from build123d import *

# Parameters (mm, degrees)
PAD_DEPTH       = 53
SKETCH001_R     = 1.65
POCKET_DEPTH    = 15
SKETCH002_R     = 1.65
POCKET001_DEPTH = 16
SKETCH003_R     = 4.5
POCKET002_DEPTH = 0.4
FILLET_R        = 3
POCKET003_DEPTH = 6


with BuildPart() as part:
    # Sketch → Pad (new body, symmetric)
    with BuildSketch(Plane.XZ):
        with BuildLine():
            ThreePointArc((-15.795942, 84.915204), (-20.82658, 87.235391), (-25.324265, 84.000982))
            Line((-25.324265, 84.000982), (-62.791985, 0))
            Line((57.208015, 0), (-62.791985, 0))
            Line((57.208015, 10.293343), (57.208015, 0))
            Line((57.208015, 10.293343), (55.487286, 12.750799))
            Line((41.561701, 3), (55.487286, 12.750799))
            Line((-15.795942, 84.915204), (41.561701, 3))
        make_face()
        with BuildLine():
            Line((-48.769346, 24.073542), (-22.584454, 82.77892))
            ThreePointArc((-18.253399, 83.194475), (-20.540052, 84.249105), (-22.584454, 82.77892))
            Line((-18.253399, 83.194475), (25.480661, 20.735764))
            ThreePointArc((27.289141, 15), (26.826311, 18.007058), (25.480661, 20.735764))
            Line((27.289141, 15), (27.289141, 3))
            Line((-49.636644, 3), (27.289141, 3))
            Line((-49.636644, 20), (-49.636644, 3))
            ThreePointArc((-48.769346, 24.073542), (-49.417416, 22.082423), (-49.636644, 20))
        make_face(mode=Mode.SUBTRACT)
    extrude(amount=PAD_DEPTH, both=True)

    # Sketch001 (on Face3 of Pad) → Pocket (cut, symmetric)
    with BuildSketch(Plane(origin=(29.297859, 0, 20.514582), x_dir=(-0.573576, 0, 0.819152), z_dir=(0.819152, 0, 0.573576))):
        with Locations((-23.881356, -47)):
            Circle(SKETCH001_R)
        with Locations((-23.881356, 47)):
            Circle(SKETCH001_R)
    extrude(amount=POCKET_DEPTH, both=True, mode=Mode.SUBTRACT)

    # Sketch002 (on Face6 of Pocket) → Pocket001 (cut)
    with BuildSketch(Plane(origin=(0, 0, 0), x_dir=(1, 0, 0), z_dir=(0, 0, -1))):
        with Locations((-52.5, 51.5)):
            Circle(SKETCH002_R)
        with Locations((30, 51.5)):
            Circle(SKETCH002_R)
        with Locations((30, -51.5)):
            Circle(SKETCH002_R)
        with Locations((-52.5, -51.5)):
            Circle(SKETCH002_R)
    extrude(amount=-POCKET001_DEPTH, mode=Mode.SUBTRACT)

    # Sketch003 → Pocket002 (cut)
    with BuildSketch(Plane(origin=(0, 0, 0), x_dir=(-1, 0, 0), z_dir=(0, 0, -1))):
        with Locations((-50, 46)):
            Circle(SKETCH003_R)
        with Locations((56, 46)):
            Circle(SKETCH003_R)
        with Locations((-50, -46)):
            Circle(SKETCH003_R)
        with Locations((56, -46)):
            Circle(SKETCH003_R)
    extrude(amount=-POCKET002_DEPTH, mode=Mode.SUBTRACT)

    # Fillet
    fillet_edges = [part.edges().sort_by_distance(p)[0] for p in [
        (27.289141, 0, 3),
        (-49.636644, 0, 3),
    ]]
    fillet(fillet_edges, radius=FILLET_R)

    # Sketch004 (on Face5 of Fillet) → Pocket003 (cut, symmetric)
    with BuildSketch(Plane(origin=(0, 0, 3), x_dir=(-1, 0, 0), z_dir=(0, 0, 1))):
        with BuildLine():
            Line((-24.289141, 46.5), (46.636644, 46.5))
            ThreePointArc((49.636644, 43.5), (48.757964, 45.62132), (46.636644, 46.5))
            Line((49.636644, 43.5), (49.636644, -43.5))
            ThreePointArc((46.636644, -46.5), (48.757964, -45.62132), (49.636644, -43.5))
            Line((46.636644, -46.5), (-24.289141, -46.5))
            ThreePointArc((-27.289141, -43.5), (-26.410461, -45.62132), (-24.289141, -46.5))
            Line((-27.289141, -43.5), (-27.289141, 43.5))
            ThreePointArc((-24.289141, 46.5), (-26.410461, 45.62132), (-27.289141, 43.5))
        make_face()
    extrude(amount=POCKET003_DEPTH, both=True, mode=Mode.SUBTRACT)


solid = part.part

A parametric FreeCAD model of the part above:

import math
import FreeCAD as App
import Part
import Sketcher
Q = App.Units.Quantity


def edges_at(feature, points):
    """Names of the edges that pass closest to the given points."""
    edges = feature.Shape.Edges
    near = lambda p: min(range(len(edges)), key=lambda i: edges[i].distToShape(Part.Vertex(*p))[0])
    return sorted({f"Edge{near(p) + 1}" for p in points})

doc = App.newDocument("Part")
params = doc.addObject("Spreadsheet::Sheet", "Params")
for row, (alias, value) in enumerate([
    ("sketch1_radius", "5.5 mm"),
    ("sketch1_radius2", "2.5 mm"),
    ("sketch1_width", "120 mm"),
    ("sketch1_height", "12 mm"),
    ("sketch1_height2", "17 mm"),
    ("pad1_length", "106 mm"),
    ("sketch2_diameter", "3.3 mm"),
    ("pocket1_length", "30 mm"),
    ("sketch3_diameter", "3.3 mm"),
    ("pocket2_length", "16 mm"),
    ("sketch4_diameter", "9 mm"),
    ("pocket3_length", "0.4 mm"),
    ("fillet_radius", "3 mm"),
    ("sketch5_radius", "3.000001 mm"),
    ("sketch5_height", "87 mm"),
    ("pocket4_length", "12 mm"),
], start=1):
    params.set(f"A{row}", alias)
    params.set(f"B{row}", "=" + value)
    params.setAlias(f"B{row}", alias)

body = doc.addObject("PartDesign::Body", "Body")

sketch1 = body.newObject("Sketcher::SketchObject", "Sketch")
sketch1.AttachmentSupport = (doc.getObject("XZ_Plane"), [""])
sketch1.MapMode = "FlatFace"
sketch1.addGeometry([
    Part.ArcOfCircle(Part.Circle(App.Vector(-20.3, 81.8, 0), App.Vector(0, 0, 1), 5.5), math.radians(35), math.radians(156)),
    Part.LineSegment(App.Vector(-25.3, 84, 0), App.Vector(-62.8, 0, 0)),
    Part.LineSegment(App.Vector(-62.8, 0, 0), App.Vector(57.2, 0, 0)),
    Part.LineSegment(App.Vector(57.2, 0, 0), App.Vector(57.2, 10.3, 0)),
    Part.LineSegment(App.Vector(57.2, 10.3, 0), App.Vector(55.5, 12.8, 0)),
    Part.LineSegment(App.Vector(55.5, 12.8, 0), App.Vector(41.6, 3, 0)),
    Part.LineSegment(App.Vector(41.6, 3, 0), App.Vector(-15.8, 84.9, 0)),
    Part.ArcOfCircle(Part.Circle(App.Vector(-39.6, 20, 0), App.Vector(0, 0, 1), 10), math.radians(156), math.radians(180)),
    Part.LineSegment(App.Vector(-48.8, 24.1, 0), App.Vector(-22.6, 82.8, 0)),
    Part.ArcOfCircle(Part.Circle(App.Vector(-20.3, 81.8, 0), App.Vector(0, 0, 1), 2.5), math.radians(35), math.radians(156)),
    Part.LineSegment(App.Vector(-18.3, 83.2, 0), App.Vector(25.5, 20.7, 0)),
    Part.ArcOfCircle(Part.Circle(App.Vector(17.3, 15, 0), App.Vector(0, 0, 1), 10), math.radians(0), math.radians(35)),
    Part.LineSegment(App.Vector(27.3, 15, 0), App.Vector(27.3, 3, 0)),
    Part.LineSegment(App.Vector(27.3, 3, 0), App.Vector(-49.6, 3, 0)),
    Part.LineSegment(App.Vector(-49.6, 3, 0), App.Vector(-49.6, 20, 0)),
], False)
sketch1.addConstraint([
    Sketcher.Constraint("Tangent", 0, 2, 1, 1),
    Sketcher.Constraint("Coincident", 1, 2, 2, 1),
    Sketcher.Constraint("Coincident", 2, 2, 3, 1),
    Sketcher.Constraint("Coincident", 3, 2, 4, 1),
    Sketcher.Constraint("Coincident", 4, 2, 5, 1),
    Sketcher.Constraint("Coincident", 5, 2, 6, 1),
    Sketcher.Constraint("Tangent", 6, 2, 0, 1),
    Sketcher.Constraint("Tangent", 7, 1, 8, 1),
    Sketcher.Constraint("Tangent", 8, 2, 9, 2),
    Sketcher.Constraint("Tangent", 9, 1, 10, 1),
    Sketcher.Constraint("Tangent", 10, 2, 11, 2),
    Sketcher.Constraint("Tangent", 11, 1, 12, 1),
    Sketcher.Constraint("Coincident", 12, 2, 13, 1),
    Sketcher.Constraint("Coincident", 13, 2, 14, 1),
    Sketcher.Constraint("Tangent", 14, 2, 7, 2),
    Sketcher.Constraint("Horizontal", 2),
    Sketcher.Constraint("Vertical", 3),
    Sketcher.Constraint("Vertical", 12),
    Sketcher.Constraint("Horizontal", 13),
    Sketcher.Constraint("Vertical", 14),
    Sketcher.Constraint("Coincident", 9, 3, 0, 3),
    Sketcher.Constraint("PointOnObject", 1, 2, -1),
    Sketcher.Constraint("Perpendicular", 4, 5),
    Sketcher.Constraint("Perpendicular", 5, 6),
    Sketcher.Constraint("Parallel", 1, 8),
    Sketcher.Constraint("Parallel", 6, 10),
    Sketcher.Constraint("Horizontal", 5, 2, 12, 2),
    Sketcher.Constraint("Radius", 0, Q("5.5 mm")),
    Sketcher.Constraint("Radius", 9, Q("2.5 mm")),
    Sketcher.Constraint("DistanceX", 2, 1, 2, 2, Q("120 mm")),
    Sketcher.Constraint("DistanceY", 12, 2, 12, 1, Q("12 mm")),
    Sketcher.Constraint("DistanceY", 14, 1, 14, 2, Q("17 mm")),
    Sketcher.Constraint("Angle", 4, Q("124.999997 deg")),
    Sketcher.Constraint("Distance", 4, Q("3 mm")),
    Sketcher.Constraint("Distance", 5, Q("17 mm")),
    Sketcher.Constraint("Distance", 6, Q("99.999999 mm")),
    Sketcher.Constraint("DistanceY", -1, 1, 5, 2, Q("3 mm")),
    Sketcher.Constraint("Radius", 7, Q("10.000019 mm")),
    Sketcher.Constraint("Radius", 11, Q("9.999984 mm")),
    Sketcher.Constraint("DistanceX", -1, 1, 5, 2, Q("41.561701 mm")),
])
sketch1.setExpression("Constraints[27]", "Params.sketch1_radius")
sketch1.setExpression("Constraints[28]", "Params.sketch1_radius2")
sketch1.setExpression("Constraints[29]", "Params.sketch1_width")
sketch1.setExpression("Constraints[30]", "Params.sketch1_height")
sketch1.setExpression("Constraints[31]", "Params.sketch1_height2")
pad1 = body.newObject("PartDesign::Pad", "Pad")
pad1.Profile = sketch1
pad1.setExpression("Length", "Params.pad1_length")
pad1.Midplane = True

sketch2 = body.newObject("Sketcher::SketchObject", "Sketch001")
sketch2.Placement = App.Placement(App.Vector(29.297859, 0, 20.514582), App.Rotation(App.Vector(-0.573576164, 0, 0.819152235), App.Vector(0, -1, 0), App.Vector(0.819152235, 0, 0.573576164), "ZXY"))
sketch2.addGeometry([
    Part.Circle(App.Vector(-23.9, -47, 0), App.Vector(0, 0, 1), 1.6),
    Part.Circle(App.Vector(-23.9, 47, 0), App.Vector(0, 0, 1), 1.6),
], False)
sketch2.addConstraint([
    Sketcher.Constraint("Equal", 0, 1),
    Sketcher.Constraint("Symmetric", 0, 3, 1, 3, -1),
    Sketcher.Constraint("Diameter", 0, Q("3.3 mm")),
    Sketcher.Constraint("DistanceY", 0, 3, -1, 1, Q("47 mm")),
    Sketcher.Constraint("DistanceX", 0, 3, -1, 1, Q("23.881356 mm")),
])
sketch2.setExpression("Constraints[2]", "Params.sketch2_diameter")
pocket1 = body.newObject("PartDesign::Pocket", "Pocket")
pocket1.Profile = sketch2
pocket1.setExpression("Length", "Params.pocket1_length")
pocket1.Midplane = True

sketch3 = body.newObject("Sketcher::SketchObject", "Sketch002")
sketch3.AttachmentSupport = (doc.getObject("XY_Plane"), [""])
sketch3.MapMode = "FlatFace"
sketch3.addGeometry([
    Part.Circle(App.Vector(-52.5, -51.5, 0), App.Vector(0, 0, 1), 1.6),
    Part.Circle(App.Vector(30, -51.5, 0), App.Vector(0, 0, 1), 1.6),
    Part.Circle(App.Vector(30, 51.5, 0), App.Vector(0, 0, 1), 1.6),
    Part.Circle(App.Vector(-52.5, 51.5, 0), App.Vector(0, 0, 1), 1.6),
], False)
sketch3.addConstraint([
    Sketcher.Constraint("Equal", 0, 1),
    Sketcher.Constraint("Equal", 1, 2),
    Sketcher.Constraint("Equal", 2, 3),
    Sketcher.Constraint("Symmetric", 1, 3, 2, 3, -1),
    Sketcher.Constraint("Symmetric", 0, 3, 3, 3, -1),
    Sketcher.Constraint("Horizontal", 0, 3, 1, 3),
    Sketcher.Constraint("Diameter", 0, Q("3.3 mm")),
    Sketcher.Constraint("DistanceX", -1, 1, 1, 3, Q("30 mm")),
    Sketcher.Constraint("DistanceY", 1, 3, 2, 3, Q("103 mm")),
    Sketcher.Constraint("DistanceX", 0, 3, -1, 1, Q("52.5 mm")),
])
sketch3.setExpression("Constraints[6]", "Params.sketch3_diameter")
pocket2 = body.newObject("PartDesign::Pocket", "Pocket001")
pocket2.Profile = sketch3
pocket2.setExpression("Length", "Params.pocket2_length")
pocket2.Reversed = True

sketch4 = body.newObject("Sketcher::SketchObject", "Sketch003")
sketch4.AttachmentSupport = (doc.getObject("XY_Plane"), [""])
sketch4.MapMode = "FlatFace"
sketch4.addGeometry([
    Part.Circle(App.Vector(50, 46, 0), App.Vector(0, 0, 1), 4.5),
    Part.Circle(App.Vector(-56, 46, 0), App.Vector(0, 0, 1), 4.5),
    Part.Circle(App.Vector(50, -46, 0), App.Vector(0, 0, 1), 4.5),
    Part.Circle(App.Vector(-56, -46, 0), App.Vector(0, 0, 1), 4.5),
], False)
sketch4.addConstraint([
    Sketcher.Constraint("Equal", 0, 1),
    Sketcher.Constraint("Equal", 1, 2),
    Sketcher.Constraint("Equal", 2, 3),
    Sketcher.Constraint("Symmetric", 0, 3, 2, 3, -1),
    Sketcher.Constraint("Symmetric", 1, 3, 3, 3, -1),
    Sketcher.Constraint("Horizontal", 0, 3, 1, 3),
    Sketcher.Constraint("Diameter", 0, Q("9 mm")),
    Sketcher.Constraint("DistanceX", -1, 1, 0, 3, Q("50 mm")),
    Sketcher.Constraint("DistanceY", -1, 1, 0, 3, Q("46 mm")),
    Sketcher.Constraint("DistanceX", 1, 3, -1, 1, Q("56 mm")),
])
sketch4.setExpression("Constraints[6]", "Params.sketch4_diameter")
pocket3 = body.newObject("PartDesign::Pocket", "Pocket002")
pocket3.Profile = sketch4
pocket3.setExpression("Length", "Params.pocket3_length")
pocket3.Reversed = True
doc.recompute()

fillet = body.newObject("PartDesign::Fillet", "Fillet")
fillet.Base = (pocket3, edges_at(pocket3, [(27.289, 0, 3), (-49.637, 0, 3)]))
fillet.setExpression("Radius", "Params.fillet_radius")

sketch5 = body.newObject("Sketcher::SketchObject", "Sketch004")
sketch5.AttachmentSupport = (doc.getObject("XY_Plane"), [""])
sketch5.MapMode = "FlatFace"
sketch5.AttachmentOffset = App.Placement(App.Vector(0, 0, 3), App.Rotation())
sketch5.addGeometry([
    Part.LineSegment(App.Vector(-46.6, -46.5, 0), App.Vector(24.3, -46.5, 0)),
    Part.ArcOfCircle(Part.Circle(App.Vector(24.3, -43.5, 0), App.Vector(0, 0, 1), 3), math.radians(-90), math.radians(0)),
    Part.LineSegment(App.Vector(27.3, -43.5, 0), App.Vector(27.3, 43.5, 0)),
    Part.ArcOfCircle(Part.Circle(App.Vector(24.3, 43.5, 0), App.Vector(0, 0, 1), 3), math.radians(0), math.radians(90)),
    Part.LineSegment(App.Vector(24.3, 46.5, 0), App.Vector(-46.6, 46.5, 0)),
    Part.ArcOfCircle(Part.Circle(App.Vector(-46.6, 43.5, 0), App.Vector(0, 0, 1), 3), math.radians(90), math.radians(180)),
    Part.LineSegment(App.Vector(-49.6, 43.5, 0), App.Vector(-49.6, -43.5, 0)),
    Part.ArcOfCircle(Part.Circle(App.Vector(-46.6, -43.5, 0), App.Vector(0, 0, 1), 3), math.radians(-180), math.radians(-90)),
], False)
sketch5.addConstraint([
    Sketcher.Constraint("Tangent", 0, 2, 1, 1),
    Sketcher.Constraint("Tangent", 1, 2, 2, 1),
    Sketcher.Constraint("Tangent", 2, 2, 3, 1),
    Sketcher.Constraint("Tangent", 3, 2, 4, 1),
    Sketcher.Constraint("Tangent", 4, 2, 5, 1),
    Sketcher.Constraint("Tangent", 5, 2, 6, 1),
    Sketcher.Constraint("Tangent", 6, 2, 7, 1),
    Sketcher.Constraint("Tangent", 7, 2, 0, 1),
    Sketcher.Constraint("Horizontal", 0),
    Sketcher.Constraint("Vertical", 2),
    Sketcher.Constraint("Horizontal", 4),
    Sketcher.Constraint("Vertical", 6),
    Sketcher.Constraint("Equal", 1, 3),
    Sketcher.Constraint("Equal", 3, 5),
    Sketcher.Constraint("Equal", 5, 7),
    Sketcher.Constraint("Radius", 1, Q("3.000001 mm")),
    Sketcher.Constraint("DistanceY", 2, 1, 2, 2, Q("87 mm")),
    Sketcher.Constraint("DistanceY", 1, 3, -1, 1, Q("43.499999 mm")),
    Sketcher.Constraint("DistanceX", 0, 1, 0, 2, Q("70.925785 mm")),
    Sketcher.Constraint("DistanceX", -1, 1, 1, 3, Q("24.28914 mm")),
])
sketch5.setExpression("Constraints[15]", "Params.sketch5_radius")
sketch5.setExpression("Constraints[16]", "Params.sketch5_height")
pocket4 = body.newObject("PartDesign::Pocket", "Pocket003")
pocket4.Profile = sketch5
pocket4.setExpression("Length", "Params.pocket4_length")
pocket4.Midplane = True

doc.recompute()
